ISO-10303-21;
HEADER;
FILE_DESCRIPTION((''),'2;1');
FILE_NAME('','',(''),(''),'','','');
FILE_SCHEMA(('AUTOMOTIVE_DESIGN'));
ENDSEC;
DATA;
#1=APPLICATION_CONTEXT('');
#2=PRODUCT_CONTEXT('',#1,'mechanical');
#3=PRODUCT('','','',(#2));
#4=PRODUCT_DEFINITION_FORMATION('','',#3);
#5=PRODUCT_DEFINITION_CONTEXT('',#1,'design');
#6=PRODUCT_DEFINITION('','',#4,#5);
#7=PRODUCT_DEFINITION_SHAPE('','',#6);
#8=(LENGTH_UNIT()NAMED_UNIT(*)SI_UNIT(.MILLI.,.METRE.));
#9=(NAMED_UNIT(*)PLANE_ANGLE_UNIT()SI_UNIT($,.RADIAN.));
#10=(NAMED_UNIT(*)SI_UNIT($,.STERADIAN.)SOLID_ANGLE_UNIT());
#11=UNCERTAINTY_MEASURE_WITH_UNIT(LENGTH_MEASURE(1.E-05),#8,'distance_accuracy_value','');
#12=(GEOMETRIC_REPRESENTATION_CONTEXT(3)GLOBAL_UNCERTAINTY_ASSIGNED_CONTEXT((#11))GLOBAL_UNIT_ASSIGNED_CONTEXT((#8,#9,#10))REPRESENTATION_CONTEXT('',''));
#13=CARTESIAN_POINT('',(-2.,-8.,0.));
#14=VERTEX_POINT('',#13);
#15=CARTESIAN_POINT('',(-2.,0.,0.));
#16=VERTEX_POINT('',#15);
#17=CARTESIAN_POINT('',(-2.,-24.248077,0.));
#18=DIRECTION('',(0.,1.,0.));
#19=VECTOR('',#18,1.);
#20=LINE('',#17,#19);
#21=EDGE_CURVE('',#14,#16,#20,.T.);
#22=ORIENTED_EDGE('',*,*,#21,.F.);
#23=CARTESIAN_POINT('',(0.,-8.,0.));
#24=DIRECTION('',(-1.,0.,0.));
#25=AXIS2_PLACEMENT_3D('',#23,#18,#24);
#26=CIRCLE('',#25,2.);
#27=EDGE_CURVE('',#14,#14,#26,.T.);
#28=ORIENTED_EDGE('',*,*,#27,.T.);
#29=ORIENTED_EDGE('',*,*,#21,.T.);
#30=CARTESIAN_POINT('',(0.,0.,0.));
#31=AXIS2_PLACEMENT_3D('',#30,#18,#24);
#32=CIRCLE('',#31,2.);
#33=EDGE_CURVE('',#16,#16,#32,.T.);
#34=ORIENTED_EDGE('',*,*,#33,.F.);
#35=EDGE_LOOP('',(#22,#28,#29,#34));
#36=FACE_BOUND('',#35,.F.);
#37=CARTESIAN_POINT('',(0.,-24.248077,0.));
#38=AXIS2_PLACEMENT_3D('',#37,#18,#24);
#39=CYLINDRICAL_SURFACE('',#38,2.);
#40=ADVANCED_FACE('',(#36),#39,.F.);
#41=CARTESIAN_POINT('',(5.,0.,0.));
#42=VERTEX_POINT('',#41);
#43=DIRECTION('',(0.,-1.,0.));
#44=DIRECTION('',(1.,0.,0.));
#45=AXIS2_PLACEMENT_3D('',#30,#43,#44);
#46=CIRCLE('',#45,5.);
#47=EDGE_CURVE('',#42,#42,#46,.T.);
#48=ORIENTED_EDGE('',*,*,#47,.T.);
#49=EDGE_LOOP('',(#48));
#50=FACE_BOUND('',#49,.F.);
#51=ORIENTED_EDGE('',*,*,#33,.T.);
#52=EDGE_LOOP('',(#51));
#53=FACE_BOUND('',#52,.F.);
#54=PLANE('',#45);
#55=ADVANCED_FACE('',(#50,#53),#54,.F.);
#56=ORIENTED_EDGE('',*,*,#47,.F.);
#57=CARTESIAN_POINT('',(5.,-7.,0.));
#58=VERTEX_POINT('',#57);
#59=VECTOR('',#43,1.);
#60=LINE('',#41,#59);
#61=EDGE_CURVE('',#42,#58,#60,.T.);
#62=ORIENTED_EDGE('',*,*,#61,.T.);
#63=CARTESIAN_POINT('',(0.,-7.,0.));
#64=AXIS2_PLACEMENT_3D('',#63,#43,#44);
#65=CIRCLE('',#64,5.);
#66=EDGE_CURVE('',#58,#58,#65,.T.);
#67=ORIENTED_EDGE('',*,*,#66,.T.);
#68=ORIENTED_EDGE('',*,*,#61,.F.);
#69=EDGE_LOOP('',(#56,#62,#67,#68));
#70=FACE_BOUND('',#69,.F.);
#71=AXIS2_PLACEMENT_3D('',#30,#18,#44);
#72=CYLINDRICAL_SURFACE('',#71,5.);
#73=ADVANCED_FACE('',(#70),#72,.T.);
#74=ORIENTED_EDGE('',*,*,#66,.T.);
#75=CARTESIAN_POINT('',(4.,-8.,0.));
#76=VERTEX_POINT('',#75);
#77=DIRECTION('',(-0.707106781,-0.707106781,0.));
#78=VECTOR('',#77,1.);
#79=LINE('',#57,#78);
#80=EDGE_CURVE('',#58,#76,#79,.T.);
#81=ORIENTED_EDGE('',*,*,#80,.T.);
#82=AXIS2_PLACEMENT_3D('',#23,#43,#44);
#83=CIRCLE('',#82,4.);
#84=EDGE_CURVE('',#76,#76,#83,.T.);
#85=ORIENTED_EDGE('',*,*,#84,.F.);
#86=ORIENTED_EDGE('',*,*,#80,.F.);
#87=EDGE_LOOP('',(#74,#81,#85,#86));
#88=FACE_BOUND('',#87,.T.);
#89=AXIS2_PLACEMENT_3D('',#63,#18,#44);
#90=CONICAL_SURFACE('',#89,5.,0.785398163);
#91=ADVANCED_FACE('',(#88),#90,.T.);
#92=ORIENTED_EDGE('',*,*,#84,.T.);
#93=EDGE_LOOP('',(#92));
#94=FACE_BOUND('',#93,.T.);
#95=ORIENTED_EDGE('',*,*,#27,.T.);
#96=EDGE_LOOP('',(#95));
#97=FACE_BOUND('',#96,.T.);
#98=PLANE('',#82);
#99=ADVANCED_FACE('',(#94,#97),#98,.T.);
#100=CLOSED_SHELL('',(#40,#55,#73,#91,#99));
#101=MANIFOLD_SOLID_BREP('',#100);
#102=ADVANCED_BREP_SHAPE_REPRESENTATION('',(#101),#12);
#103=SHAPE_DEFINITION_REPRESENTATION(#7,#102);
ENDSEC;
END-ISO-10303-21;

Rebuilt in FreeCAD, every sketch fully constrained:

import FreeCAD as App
import Part
import Sketcher
Q = App.Units.Quantity


def edges_at(feature, points):
    """Names of the edges that pass closest to the given points."""
    edges = feature.Shape.Edges
    near = lambda p: min(range(len(edges)), key=lambda i: edges[i].distToShape(Part.Vertex(*p))[0])
    return sorted({f"Edge{near(p) + 1}" for p in points})

doc = App.newDocument("Part")
params = doc.addObject("Spreadsheet::Sheet", "Params")
for row, (alias, value) in enumerate([
    ("sketch1_diameter", "10 mm"),
    ("pad1_length", "8 mm"),
    ("sketch2_diameter", "4 mm"),
    ("hole_diameter", "4 mm"),
    ("chamfer_size", "1 mm"),
], start=1):
    params.set(f"A{row}", alias)
    params.set(f"B{row}", "=" + value)
    params.setAlias(f"B{row}", alias)

body = doc.addObject("PartDesign::Body", "Body")

sketch1 = body.newObject("Sketcher::SketchObject", "Sketch")
sketch1.AttachmentSupport = (doc.getObject("XZ_Plane"), [""])
sketch1.MapMode = "FlatFace"
sketch1.addGeometry(Part.Circle(App.Vector(0, 0, 0), App.Vector(0, 0, 1), 5), False)
sketch1.addConstraint(Sketcher.Constraint("Coincident", 0, 3, -1, 1))
sketch1.addConstraint(Sketcher.Constraint("Diameter", 0, Q("10 mm")))
sketch1.setExpression("Constraints[1]", "Params.sketch1_diameter")
pad1 = body.newObject("PartDesign::Pad", "Pad")
pad1.Profile = sketch1
pad1.setExpression("Length", "Params.pad1_length")

sketch2 = body.newObject("Sketcher::SketchObject", "Sketch001")
sketch2.AttachmentSupport = (doc.getObject("XZ_Plane"), [""])
sketch2.MapMode = "FlatFace"
sketch2.AttachmentOffset = App.Placement(App.Vector(0, 0, 8), App.Rotation())
sketch2.addGeometry(Part.Circle(App.Vector(0, 0, 0), App.Vector(0, 0, 1), 2), False)
sketch2.addConstraint(Sketcher.Constraint("Coincident", 0, 3, -1, 1))
sketch2.addConstraint(Sketcher.Constraint("Diameter", 0, Q("4 mm")))
sketch2.setExpression("Constraints[1]", "Params.sketch2_diameter")
doc.recompute()
hole = body.newObject("PartDesign::Hole", "Hole")
hole.Profile = sketch2
hole.ThreadType = "None"
hole.setExpression("Diameter", "Params.hole_diameter")
hole.DepthType = "ThroughAll"
doc.recompute()

chamfer = body.newObject("PartDesign::Chamfer", "Chamfer")
chamfer.Base = (hole, edges_at(hole, [(-5, -8, 0)]))
chamfer.setExpression("Size", "Params.chamfer_size")

doc.recompute()
